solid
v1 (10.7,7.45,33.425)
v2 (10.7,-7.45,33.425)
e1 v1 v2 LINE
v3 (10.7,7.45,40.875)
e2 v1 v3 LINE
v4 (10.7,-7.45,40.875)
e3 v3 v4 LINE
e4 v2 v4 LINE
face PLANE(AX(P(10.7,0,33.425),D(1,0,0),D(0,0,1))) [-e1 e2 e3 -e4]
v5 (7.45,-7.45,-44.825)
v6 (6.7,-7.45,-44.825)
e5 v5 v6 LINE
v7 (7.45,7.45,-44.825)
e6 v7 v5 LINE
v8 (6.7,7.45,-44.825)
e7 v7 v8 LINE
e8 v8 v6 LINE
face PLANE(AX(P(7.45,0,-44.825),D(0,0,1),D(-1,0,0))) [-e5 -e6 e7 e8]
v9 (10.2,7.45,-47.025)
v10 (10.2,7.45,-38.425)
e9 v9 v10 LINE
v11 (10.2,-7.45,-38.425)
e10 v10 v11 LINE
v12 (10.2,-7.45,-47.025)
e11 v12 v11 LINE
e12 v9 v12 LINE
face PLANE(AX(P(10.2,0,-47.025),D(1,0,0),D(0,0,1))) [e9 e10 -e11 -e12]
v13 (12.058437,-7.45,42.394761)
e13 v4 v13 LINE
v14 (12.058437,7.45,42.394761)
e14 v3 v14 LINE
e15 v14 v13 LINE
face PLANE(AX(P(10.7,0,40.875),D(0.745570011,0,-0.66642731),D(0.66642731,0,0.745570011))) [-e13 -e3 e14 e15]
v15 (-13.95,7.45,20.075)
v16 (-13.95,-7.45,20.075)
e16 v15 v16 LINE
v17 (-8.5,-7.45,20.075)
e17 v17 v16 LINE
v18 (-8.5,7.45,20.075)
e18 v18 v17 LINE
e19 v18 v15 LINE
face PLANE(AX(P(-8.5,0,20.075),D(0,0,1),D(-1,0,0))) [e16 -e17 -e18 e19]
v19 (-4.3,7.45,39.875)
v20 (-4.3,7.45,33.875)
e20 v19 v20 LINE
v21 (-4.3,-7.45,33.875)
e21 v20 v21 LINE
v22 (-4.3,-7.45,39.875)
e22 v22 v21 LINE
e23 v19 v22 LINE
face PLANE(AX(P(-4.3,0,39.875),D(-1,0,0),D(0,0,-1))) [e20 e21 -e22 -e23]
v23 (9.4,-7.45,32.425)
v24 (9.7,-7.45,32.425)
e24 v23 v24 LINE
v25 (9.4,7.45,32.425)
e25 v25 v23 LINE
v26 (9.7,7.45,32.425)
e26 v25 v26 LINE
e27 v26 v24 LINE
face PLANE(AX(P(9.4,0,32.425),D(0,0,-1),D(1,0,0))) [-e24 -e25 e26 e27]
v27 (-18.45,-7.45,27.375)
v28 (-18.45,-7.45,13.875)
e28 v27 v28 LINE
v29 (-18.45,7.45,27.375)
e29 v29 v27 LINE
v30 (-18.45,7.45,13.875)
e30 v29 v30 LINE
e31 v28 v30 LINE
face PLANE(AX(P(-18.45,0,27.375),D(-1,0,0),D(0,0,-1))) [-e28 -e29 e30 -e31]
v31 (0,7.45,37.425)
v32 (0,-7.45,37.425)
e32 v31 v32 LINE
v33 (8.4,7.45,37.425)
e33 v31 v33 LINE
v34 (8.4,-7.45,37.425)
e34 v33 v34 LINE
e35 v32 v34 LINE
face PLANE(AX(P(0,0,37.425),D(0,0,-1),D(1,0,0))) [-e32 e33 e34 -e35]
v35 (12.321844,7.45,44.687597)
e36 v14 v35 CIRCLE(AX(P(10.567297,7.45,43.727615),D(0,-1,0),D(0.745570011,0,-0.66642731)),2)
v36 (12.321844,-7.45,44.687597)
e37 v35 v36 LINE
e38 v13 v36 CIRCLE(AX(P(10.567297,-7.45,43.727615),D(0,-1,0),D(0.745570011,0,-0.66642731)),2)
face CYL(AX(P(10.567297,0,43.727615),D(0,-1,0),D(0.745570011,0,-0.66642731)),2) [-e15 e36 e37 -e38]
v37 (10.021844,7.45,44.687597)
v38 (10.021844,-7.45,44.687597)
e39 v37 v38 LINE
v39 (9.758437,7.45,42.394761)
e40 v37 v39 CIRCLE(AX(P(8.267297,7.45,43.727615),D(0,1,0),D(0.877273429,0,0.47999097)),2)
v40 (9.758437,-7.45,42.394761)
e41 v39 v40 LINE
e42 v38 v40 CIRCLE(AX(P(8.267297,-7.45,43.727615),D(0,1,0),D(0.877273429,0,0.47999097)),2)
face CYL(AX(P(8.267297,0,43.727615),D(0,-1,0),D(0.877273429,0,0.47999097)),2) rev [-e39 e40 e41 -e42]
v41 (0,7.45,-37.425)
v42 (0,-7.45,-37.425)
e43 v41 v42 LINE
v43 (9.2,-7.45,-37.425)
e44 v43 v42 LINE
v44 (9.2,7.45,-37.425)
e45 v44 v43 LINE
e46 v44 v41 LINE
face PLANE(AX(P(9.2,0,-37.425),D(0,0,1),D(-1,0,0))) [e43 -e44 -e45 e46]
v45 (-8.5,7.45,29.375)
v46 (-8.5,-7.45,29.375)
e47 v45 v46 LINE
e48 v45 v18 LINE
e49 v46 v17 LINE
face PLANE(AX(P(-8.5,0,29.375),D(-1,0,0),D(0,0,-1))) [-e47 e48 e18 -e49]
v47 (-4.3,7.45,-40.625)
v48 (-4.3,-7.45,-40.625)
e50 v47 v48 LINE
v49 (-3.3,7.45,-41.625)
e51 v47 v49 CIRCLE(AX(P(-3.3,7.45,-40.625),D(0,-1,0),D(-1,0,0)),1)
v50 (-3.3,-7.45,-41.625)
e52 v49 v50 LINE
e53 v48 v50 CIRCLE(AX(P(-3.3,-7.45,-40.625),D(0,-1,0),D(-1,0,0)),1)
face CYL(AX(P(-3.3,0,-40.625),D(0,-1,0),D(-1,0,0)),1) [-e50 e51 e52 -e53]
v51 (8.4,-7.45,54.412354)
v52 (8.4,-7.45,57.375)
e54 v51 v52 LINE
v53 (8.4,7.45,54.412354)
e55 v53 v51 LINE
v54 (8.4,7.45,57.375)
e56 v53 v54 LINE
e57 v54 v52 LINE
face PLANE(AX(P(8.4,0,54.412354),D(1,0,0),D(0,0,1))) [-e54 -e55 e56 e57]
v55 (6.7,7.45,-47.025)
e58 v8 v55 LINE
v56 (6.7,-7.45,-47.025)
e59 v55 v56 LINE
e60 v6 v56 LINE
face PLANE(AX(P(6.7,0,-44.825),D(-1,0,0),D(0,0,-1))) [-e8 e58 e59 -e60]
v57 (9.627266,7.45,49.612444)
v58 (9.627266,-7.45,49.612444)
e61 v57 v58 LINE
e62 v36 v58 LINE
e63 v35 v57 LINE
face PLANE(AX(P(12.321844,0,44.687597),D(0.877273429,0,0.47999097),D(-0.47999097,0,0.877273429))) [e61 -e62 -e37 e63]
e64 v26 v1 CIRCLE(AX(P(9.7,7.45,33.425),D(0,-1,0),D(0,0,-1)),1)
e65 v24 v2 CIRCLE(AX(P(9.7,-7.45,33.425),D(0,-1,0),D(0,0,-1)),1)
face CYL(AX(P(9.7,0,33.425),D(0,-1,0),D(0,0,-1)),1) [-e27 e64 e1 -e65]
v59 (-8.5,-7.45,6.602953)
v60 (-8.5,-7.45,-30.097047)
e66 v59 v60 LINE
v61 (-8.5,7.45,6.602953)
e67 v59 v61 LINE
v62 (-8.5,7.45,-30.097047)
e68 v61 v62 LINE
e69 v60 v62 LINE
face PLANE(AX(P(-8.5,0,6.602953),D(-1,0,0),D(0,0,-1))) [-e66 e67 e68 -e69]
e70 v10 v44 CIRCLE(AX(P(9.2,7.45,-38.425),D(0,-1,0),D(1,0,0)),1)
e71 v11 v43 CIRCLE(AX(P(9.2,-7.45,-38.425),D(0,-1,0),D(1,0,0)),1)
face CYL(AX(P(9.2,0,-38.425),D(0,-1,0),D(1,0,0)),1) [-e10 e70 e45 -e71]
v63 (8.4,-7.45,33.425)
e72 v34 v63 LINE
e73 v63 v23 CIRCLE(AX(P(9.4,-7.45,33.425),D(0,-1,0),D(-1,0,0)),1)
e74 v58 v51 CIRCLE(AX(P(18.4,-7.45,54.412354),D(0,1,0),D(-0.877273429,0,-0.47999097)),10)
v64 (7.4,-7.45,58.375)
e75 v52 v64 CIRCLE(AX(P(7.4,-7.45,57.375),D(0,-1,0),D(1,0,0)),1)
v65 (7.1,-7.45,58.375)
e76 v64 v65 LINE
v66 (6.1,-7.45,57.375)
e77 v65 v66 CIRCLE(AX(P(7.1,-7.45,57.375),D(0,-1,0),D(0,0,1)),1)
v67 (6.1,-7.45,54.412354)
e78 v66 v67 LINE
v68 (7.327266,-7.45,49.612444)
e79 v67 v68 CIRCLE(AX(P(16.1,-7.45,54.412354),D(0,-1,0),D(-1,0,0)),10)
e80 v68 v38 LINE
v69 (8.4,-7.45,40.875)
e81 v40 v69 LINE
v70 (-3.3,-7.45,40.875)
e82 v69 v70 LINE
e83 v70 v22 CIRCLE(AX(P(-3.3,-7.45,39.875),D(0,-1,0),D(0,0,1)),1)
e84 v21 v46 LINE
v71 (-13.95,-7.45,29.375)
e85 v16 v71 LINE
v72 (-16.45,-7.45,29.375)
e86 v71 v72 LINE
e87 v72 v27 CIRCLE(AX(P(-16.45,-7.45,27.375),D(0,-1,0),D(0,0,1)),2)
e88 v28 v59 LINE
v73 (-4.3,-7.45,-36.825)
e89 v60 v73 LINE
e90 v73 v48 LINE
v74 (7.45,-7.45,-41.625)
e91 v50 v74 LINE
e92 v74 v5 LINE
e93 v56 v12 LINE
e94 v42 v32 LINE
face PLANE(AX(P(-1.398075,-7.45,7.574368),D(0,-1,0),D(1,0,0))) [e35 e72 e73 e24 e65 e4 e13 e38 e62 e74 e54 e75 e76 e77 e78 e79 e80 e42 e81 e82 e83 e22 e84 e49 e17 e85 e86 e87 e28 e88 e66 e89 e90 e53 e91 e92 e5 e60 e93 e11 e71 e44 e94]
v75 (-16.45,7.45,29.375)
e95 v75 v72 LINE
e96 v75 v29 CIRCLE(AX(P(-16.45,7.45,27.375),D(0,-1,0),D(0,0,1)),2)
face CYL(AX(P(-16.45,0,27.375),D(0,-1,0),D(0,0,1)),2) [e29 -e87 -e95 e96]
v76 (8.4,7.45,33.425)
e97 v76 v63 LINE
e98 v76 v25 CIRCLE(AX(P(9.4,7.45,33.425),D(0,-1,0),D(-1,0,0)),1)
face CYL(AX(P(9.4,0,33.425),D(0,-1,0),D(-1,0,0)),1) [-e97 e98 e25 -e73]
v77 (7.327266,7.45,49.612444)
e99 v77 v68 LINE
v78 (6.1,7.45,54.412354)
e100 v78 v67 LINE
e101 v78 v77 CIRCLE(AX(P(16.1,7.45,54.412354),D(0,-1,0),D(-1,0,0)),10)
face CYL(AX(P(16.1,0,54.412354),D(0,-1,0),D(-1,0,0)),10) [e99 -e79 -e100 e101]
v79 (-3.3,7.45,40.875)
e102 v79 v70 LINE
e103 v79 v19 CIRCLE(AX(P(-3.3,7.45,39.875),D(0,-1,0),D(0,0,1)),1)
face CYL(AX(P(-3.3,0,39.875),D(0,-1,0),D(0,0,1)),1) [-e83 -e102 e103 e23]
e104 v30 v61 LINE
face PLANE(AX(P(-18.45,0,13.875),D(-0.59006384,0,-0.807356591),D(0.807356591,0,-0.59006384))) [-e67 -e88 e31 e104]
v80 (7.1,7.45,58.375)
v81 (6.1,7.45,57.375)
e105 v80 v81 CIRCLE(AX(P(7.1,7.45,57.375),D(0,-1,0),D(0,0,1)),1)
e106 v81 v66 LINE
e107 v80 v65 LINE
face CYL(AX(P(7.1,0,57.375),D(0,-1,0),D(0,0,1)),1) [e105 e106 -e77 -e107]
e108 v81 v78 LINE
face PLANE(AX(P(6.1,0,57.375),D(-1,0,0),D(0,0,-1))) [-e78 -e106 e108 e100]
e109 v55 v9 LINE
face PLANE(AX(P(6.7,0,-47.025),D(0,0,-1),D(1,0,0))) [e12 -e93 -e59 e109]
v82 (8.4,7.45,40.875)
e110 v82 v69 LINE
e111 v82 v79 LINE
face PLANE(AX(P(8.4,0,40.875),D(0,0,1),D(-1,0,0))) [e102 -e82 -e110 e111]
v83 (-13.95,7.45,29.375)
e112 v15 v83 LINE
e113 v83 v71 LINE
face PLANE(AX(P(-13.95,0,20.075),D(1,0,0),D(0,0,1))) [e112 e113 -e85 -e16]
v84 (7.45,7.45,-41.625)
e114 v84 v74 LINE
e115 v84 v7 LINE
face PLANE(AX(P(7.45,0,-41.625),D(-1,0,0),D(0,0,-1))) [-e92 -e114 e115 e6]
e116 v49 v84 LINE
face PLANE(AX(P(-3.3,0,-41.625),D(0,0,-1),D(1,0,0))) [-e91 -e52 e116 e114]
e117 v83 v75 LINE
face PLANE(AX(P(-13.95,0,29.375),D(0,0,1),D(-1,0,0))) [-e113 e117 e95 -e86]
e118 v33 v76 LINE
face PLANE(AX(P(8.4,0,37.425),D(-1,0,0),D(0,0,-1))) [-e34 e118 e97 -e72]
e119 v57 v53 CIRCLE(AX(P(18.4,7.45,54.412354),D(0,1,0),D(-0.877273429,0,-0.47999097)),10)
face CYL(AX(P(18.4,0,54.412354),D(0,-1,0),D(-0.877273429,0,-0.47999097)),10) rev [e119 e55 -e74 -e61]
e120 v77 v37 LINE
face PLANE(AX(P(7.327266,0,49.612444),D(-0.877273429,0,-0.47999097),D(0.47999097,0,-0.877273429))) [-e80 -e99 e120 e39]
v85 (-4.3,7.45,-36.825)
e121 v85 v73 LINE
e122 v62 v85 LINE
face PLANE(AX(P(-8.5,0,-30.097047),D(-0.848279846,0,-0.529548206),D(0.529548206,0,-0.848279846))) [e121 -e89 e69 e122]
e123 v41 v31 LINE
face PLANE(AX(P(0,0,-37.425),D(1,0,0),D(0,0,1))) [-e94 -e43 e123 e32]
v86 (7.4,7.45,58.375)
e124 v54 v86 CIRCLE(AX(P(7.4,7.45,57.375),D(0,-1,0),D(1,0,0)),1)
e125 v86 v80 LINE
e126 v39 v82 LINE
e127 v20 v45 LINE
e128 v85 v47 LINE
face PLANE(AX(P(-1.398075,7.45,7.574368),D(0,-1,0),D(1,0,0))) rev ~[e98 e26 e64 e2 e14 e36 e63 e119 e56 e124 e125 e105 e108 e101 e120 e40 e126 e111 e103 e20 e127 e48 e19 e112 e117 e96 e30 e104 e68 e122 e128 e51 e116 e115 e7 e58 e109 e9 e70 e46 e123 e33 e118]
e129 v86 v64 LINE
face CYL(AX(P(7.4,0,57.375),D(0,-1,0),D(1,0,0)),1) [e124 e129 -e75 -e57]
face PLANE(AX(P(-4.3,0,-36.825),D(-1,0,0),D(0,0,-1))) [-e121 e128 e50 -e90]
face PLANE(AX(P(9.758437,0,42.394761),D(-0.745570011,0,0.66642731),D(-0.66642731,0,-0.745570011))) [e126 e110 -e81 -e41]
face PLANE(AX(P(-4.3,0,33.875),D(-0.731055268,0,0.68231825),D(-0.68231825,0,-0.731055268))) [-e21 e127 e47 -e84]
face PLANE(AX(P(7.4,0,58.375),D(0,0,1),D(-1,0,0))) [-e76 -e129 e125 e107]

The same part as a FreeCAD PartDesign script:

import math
import FreeCAD as App
import Part
import Sketcher

V = App.Vector
Q = App.Units.Quantity

doc = App.newDocument("Part")
params = doc.addObject("Spreadsheet::Sheet", "Params")
for row, (alias, value) in enumerate([
    ("sketch1_radius", "1 mm"),
    ("sketch1_radius2", "2 mm"),
    ("sketch1_radius3", "10 mm"),
    ("sketch1_height", "4 mm"),
    ("sketch1_height2", "6 mm"),
    ("pad1_length", "14.9 mm"),
], start=1):
    params.set(f"A{row}", alias)
    params.set(f"B{row}", "=" + value)
    params.setAlias(f"B{row}", alias)

body = doc.addObject("PartDesign::Body", "Body")

# Sketch on XZ plane
sketch1 = body.newObject("Sketcher::SketchObject", "Sketch")
sketch1.AttachmentSupport = (doc.getObject("XZ_Plane"), [""])
sketch1.MapMode = "FlatFace"
sketch1.addGeometry(Part.LineSegment(V(-8.5, -30.097047, 0), V(-4.3, -36.825, 0)), False)
sketch1.addGeometry(Part.LineSegment(V(-4.3, -36.825, 0), V(-4.3, -40.625, 0)), False)
sketch1.addGeometry(Part.ArcOfCircle(Part.Circle(V(-3.3, -40.625, 0), V(0, 0, 1), 1), math.radians(180), math.radians(270)), False)
sketch1.addGeometry(Part.LineSegment(V(-3.3, -41.625, 0), V(7.45, -41.625, 0)), False)
sketch1.addGeometry(Part.LineSegment(V(7.45, -41.625, 0), V(7.45, -44.825, 0)), False)
sketch1.addGeometry(Part.LineSegment(V(7.45, -44.825, 0), V(6.7, -44.825, 0)), False)
sketch1.addGeometry(Part.LineSegment(V(6.7, -44.825, 0), V(6.7, -47.025, 0)), False)
sketch1.addGeometry(Part.LineSegment(V(6.7, -47.025, 0), V(10.2, -47.025, 0)), False)
sketch1.addGeometry(Part.LineSegment(V(10.2, -47.025, 0), V(10.2, -38.425, 0)), False)
sketch1.addGeometry(Part.ArcOfCircle(Part.Circle(V(9.2, -38.425, 0), V(0, 0, 1), 1), math.radians(0), math.radians(90)), False)
sketch1.addGeometry(Part.LineSegment(V(9.2, -37.425, 0), V(0, -37.425, 0)), False)
sketch1.addGeometry(Part.LineSegment(V(0, -37.425, 0), V(0, 37.425, 0)), False)
sketch1.addGeometry(Part.LineSegment(V(0, 37.425, 0), V(8.4, 37.425, 0)), False)
sketch1.addGeometry(Part.LineSegment(V(8.4, 37.425, 0), V(8.4, 33.425, 0)), False)
sketch1.addGeometry(Part.ArcOfCircle(Part.Circle(V(9.4, 33.425, 0), V(0, 0, 1), 1), math.radians(180), math.radians(270)), False)
sketch1.addGeometry(Part.LineSegment(V(9.4, 32.425, 0), V(9.7, 32.425, 0)), False)
sketch1.addGeometry(Part.ArcOfCircle(Part.Circle(V(9.7, 33.425, 0), V(0, 0, 1), 1), math.radians(-90), math.radians(0)), False)
sketch1.addGeometry(Part.LineSegment(V(10.7, 33.425, 0), V(10.7, 40.875, 0)), False)
sketch1.addGeometry(Part.LineSegment(V(10.7, 40.875, 0), V(12.058437, 42.394761, 0)), False)
sketch1.addGeometry(Part.ArcOfCircle(Part.Circle(V(10.567297, 43.727615, 0), V(0, 0, 1), 2), math.radians(-41.791918), math.radians(28.684812)), False)
sketch1.addGeometry(Part.LineSegment(V(12.321844, 44.687597, 0), V(9.627266, 49.612444, 0)), False)
sketch1.addGeometry(Part.ArcOfCircle(Part.Circle(V(18.4, 54.412354, 0), V(0, 0, 1), 10), math.radians(-180), math.radians(-151.315188)), False)
sketch1.addGeometry(Part.LineSegment(V(8.4, 54.412354, 0), V(8.4, 57.375, 0)), False)
sketch1.addGeometry(Part.ArcOfCircle(Part.Circle(V(7.4, 57.375, 0), V(0, 0, 1), 1), math.radians(0), math.radians(90)), False)
sketch1.addGeometry(Part.LineSegment(V(7.4, 58.375, 0), V(7.1, 58.375, 0)), False)
sketch1.addGeometry(Part.ArcOfCircle(Part.Circle(V(7.1, 57.375, 0), V(0, 0, 1), 1), math.radians(90), math.radians(180)), False)
sketch1.addGeometry(Part.LineSegment(V(6.1, 57.375, 0), V(6.1, 54.412354, 0)), False)
sketch1.addGeometry(Part.ArcOfCircle(Part.Circle(V(16.1, 54.412354, 0), V(0, 0, 1), 10), math.radians(-180), math.radians(-151.315188)), False)
sketch1.addGeometry(Part.LineSegment(V(7.327266, 49.612444, 0), V(10.021844, 44.687597, 0)), False)
sketch1.addGeometry(Part.ArcOfCircle(Part.Circle(V(8.267297, 43.727615, 0), V(0, 0, 1), 2), math.radians(-41.791918), math.radians(28.684812)), False)
sketch1.addGeometry(Part.LineSegment(V(9.758437, 42.394761, 0), V(8.4, 40.875, 0)), False)
sketch1.addGeometry(Part.LineSegment(V(8.4, 40.875, 0), V(-3.3, 40.875, 0)), False)
sketch1.addGeometry(Part.ArcOfCircle(Part.Circle(V(-3.3, 39.875, 0), V(0, 0, 1), 1), math.radians(90), math.radians(180)), False)
sketch1.addGeometry(Part.LineSegment(V(-4.3, 39.875, 0), V(-4.3, 33.875, 0)), False)
sketch1.addGeometry(Part.LineSegment(V(-4.3, 33.875, 0), V(-8.5, 29.375, 0)), False)
sketch1.addGeometry(Part.LineSegment(V(-8.5, 29.375, 0), V(-8.5, 20.075, 0)), False)
sketch1.addGeometry(Part.LineSegment(V(-8.5, 20.075, 0), V(-13.95, 20.075, 0)), False)
sketch1.addGeometry(Part.LineSegment(V(-13.95, 20.075, 0), V(-13.95, 29.375, 0)), False)
sketch1.addGeometry(Part.LineSegment(V(-13.95, 29.375, 0), V(-16.45, 29.375, 0)), False)
sketch1.addGeometry(Part.ArcOfCircle(Part.Circle(V(-16.45, 27.375, 0), V(0, 0, 1), 2), math.radians(90), math.radians(180)), False)
sketch1.addGeometry(Part.LineSegment(V(-18.45, 27.375, 0), V(-18.45, 13.875, 0)), False)
sketch1.addGeometry(Part.LineSegment(V(-18.45, 13.875, 0), V(-8.5, 6.602953, 0)), False)
sketch1.addGeometry(Part.LineSegment(V(-8.5, 6.602953, 0), V(-8.5, -30.097047, 0)), False)
sketch1.addConstraint(Sketcher.Constraint("Coincident", 0, 2, 1, 1))
sketch1.addConstraint(Sketcher.Constraint("Tangent", 1, 2, 2, 1))
sketch1.addConstraint(Sketcher.Constraint("Tangent", 2, 2, 3, 1))
sketch1.addConstraint(Sketcher.Constraint("Coincident", 3, 2, 4, 1))
sketch1.addConstraint(Sketcher.Constraint("Coincident", 4, 2, 5, 1))
sketch1.addConstraint(Sketcher.Constraint("Coincident", 5, 2, 6, 1))
sketch1.addConstraint(Sketcher.Constraint("Coincident", 6, 2, 7, 1))
sketch1.addConstraint(Sketcher.Constraint("Coincident", 7, 2, 8, 1))
sketch1.addConstraint(Sketcher.Constraint("Tangent", 8, 2, 9, 1))
sketch1.addConstraint(Sketcher.Constraint("Tangent", 9, 2, 10, 1))
sketch1.addConstraint(Sketcher.Constraint("Coincident", 10, 2, 11, 1))
sketch1.addConstraint(Sketcher.Constraint("Coincident", 11, 2, 12, 1))
sketch1.addConstraint(Sketcher.Constraint("Coincident", 12, 2, 13, 1))
sketch1.addConstraint(Sketcher.Constraint("Tangent", 13, 2, 14, 1))
sketch1.addConstraint(Sketcher.Constraint("Tangent", 14, 2, 15, 1))
sketch1.addConstraint(Sketcher.Constraint("Tangent", 15, 2, 16, 1))
sketch1.addConstraint(Sketcher.Constraint("Tangent", 16, 2, 17, 1))
sketch1.addConstraint(Sketcher.Constraint("Coincident", 17, 2, 18, 1))
sketch1.addConstraint(Sketcher.Constraint("Tangent", 18, 2, 19, 1))
sketch1.addConstraint(Sketcher.Constraint("Tangent", 19, 2, 20, 1))
sketch1.addConstraint(Sketcher.Constraint("Tangent", 20, 2, 21, 2))
sketch1.addConstraint(Sketcher.Constraint("Tangent", 21, 1, 22, 1))
sketch1.addConstraint(Sketcher.Constraint("Tangent", 22, 2, 23, 1))
sketch1.addConstraint(Sketcher.Constraint("Tangent", 23, 2, 24, 1))
sketch1.addConstraint(Sketcher.Constraint("Tangent", 24, 2, 25, 1))
sketch1.addConstraint(Sketcher.Constraint("Tangent", 25, 2, 26, 1))
sketch1.addConstraint(Sketcher.Constraint("Tangent", 26, 2, 27, 1))
sketch1.addConstraint(Sketcher.Constraint("Tangent", 27, 2, 28, 1))
sketch1.addConstraint(Sketcher.Constraint("Tangent", 28, 2, 29, 2))
sketch1.addConstraint(Sketcher.Constraint("Tangent", 29, 1, 30, 1))
sketch1.addConstraint(Sketcher.Constraint("Coincident", 30, 2, 31, 1))
sketch1.addConstraint(Sketcher.Constraint("Tangent", 31, 2, 32, 1))
sketch1.addConstraint(Sketcher.Constraint("Tangent", 32, 2, 33, 1))
sketch1.addConstraint(Sketcher.Constraint("Coincident", 33, 2, 34, 1))
sketch1.addConstraint(Sketcher.Constraint("Coincident", 34, 2, 35, 1))
sketch1.addConstraint(Sketcher.Constraint("Coincident", 35, 2, 36, 1))
sketch1.addConstraint(Sketcher.Constraint("Coincident", 36, 2, 37, 1))
sketch1.addConstraint(Sketcher.Constraint("Coincident", 37, 2, 38, 1))
sketch1.addConstraint(Sketcher.Constraint("Tangent", 38, 2, 39, 1))
sketch1.addConstraint(Sketcher.Constraint("Tangent", 39, 2, 40, 1))
sketch1.addConstraint(Sketcher.Constraint("Coincident", 40, 2, 41, 1))
sketch1.addConstraint(Sketcher.Constraint("Coincident", 41, 2, 42, 1))
sketch1.addConstraint(Sketcher.Constraint("Coincident", 42, 2, 0, 1))
sketch1.addConstraint(Sketcher.Constraint("Vertical", 1))
sketch1.addConstraint(Sketcher.Constraint("Horizontal", 3))
sketch1.addConstraint(Sketcher.Constraint("Vertical", 4))
sketch1.addConstraint(Sketcher.Constraint("Horizontal", 5))
sketch1.addConstraint(Sketcher.Constraint("Vertical", 6))
sketch1.addConstraint(Sketcher.Constraint("Horizontal", 7))
sketch1.addConstraint(Sketcher.Constraint("Vertical", 8))
sketch1.addConstraint(Sketcher.Constraint("Horizontal", 10))
sketch1.addConstraint(Sketcher.Constraint("Vertical", 11))
sketch1.addConstraint(Sketcher.Constraint("Horizontal", 12))
sketch1.addConstraint(Sketcher.Constraint("Vertical", 13))
sketch1.addConstraint(Sketcher.Constraint("Horizontal", 15))
sketch1.addConstraint(Sketcher.Constraint("Vertical", 17))
sketch1.addConstraint(Sketcher.Constraint("Vertical", 22))
sketch1.addConstraint(Sketcher.Constraint("Horizontal", 24))
sketch1.addConstraint(Sketcher.Constraint("Vertical", 26))
sketch1.addConstraint(Sketcher.Constraint("Horizontal", 31))
sketch1.addConstraint(Sketcher.Constraint("Vertical", 33))
sketch1.addConstraint(Sketcher.Constraint("Vertical", 35))
sketch1.addConstraint(Sketcher.Constraint("Horizontal", 36))
sketch1.addConstraint(Sketcher.Constraint("Vertical", 37))
sketch1.addConstraint(Sketcher.Constraint("Horizontal", 38))
sketch1.addConstraint(Sketcher.Constraint("Vertical", 40))
sketch1.addConstraint(Sketcher.Constraint("Vertical", 42))
sketch1.addConstraint(Sketcher.Constraint("Equal", 2, 9))
sketch1.addConstraint(Sketcher.Constraint("Equal", 9, 14))
sketch1.addConstraint(Sketcher.Constraint("Equal", 14, 16))
sketch1.addConstraint(Sketcher.Constraint("Equal", 16, 23))
sketch1.addConstraint(Sketcher.Constraint("Equal", 23, 25))
sketch1.addConstraint(Sketcher.Constraint("Equal", 21, 27))
sketch1.addConstraint(Sketcher.Constraint("Equal", 19, 29))
sketch1.addConstraint(Sketcher.Constraint("Equal", 25, 32))
sketch1.addConstraint(Sketcher.Constraint("Equal", 29, 39))
sketch1.addConstraint(Sketcher.Constraint("Symmetric", 10, 2, 11, 2, -1, 1))
sketch1.addConstraint(Sketcher.Constraint("Parallel", 20, 28))
sketch1.addConstraint(Sketcher.Constraint("Parallel", 18, 30))
sketch1.addConstraint(Sketcher.Constraint("Horizontal", 21, 3, 27, 3))
sketch1.addConstraint(Sketcher.Constraint("Horizontal", 19, 3, 29, 3))
sketch1.addConstraint(Sketcher.Constraint("Horizontal", 17, 2, 30, 2))
sketch1.addConstraint(Sketcher.Constraint("Horizontal", 34, 2, 37, 2))
sketch1.addConstraint(Sketcher.Constraint("Vertical", 2, 3, 32, 3))
sketch1.addConstraint(Sketcher.Constraint("Vertical", 13, 2, 21, 1))
sketch1.addConstraint(Sketcher.Constraint("Vertical", 22, 2, 30, 2))
sketch1.addConstraint(Sketcher.Constraint("Vertical", 35, 2, 41, 2))
sketch1.addConstraint(Sketcher.Constraint("Radius", 2, Q("1 mm")))
sketch1.addConstraint(Sketcher.Constraint("Radius", 19, Q("2 mm")))
sketch1.addConstraint(Sketcher.Constraint("Radius", 21, Q("10 mm")))
sketch1.addConstraint(Sketcher.Constraint("DistanceY", 13, 2, 13, 1, Q("4 mm")))
sketch1.addConstraint(Sketcher.Constraint("DistanceY", 33, 2, 33, 1, Q("6 mm")))
sketch1.addConstraint(Sketcher.Constraint("DistanceX", 7, 1, 7, 2, Q("3.5 mm")))
sketch1.addConstraint(Sketcher.Constraint("DistanceX", 10, 2, 10, 1, Q("9.2 mm")))
sketch1.addConstraint(Sketcher.Constraint("DistanceX", 12, 1, 12, 2, Q("8.4 mm")))
sketch1.addConstraint(Sketcher.Constraint("DistanceX", 15, 1, 15, 2, Q("0.3 mm")))
sketch1.addConstraint(Sketcher.Constraint("DistanceX", 31, 2, 31, 1, Q("11.7 mm")))
sketch1.addConstraint(Sketcher.Constraint("DistanceX", 38, 2, 38, 1, Q("2.5 mm")))
sketch1.addConstraint(Sketcher.Constraint("DistanceY", 1, 2, 1, 1, Q("3.8 mm")))
sketch1.addConstraint(Sketcher.Constraint("DistanceY", 4, 2, 4, 1, Q("3.2 mm")))
sketch1.addConstraint(Sketcher.Constraint("DistanceY", 6, 2, 6, 1, Q("2.2 mm")))
sketch1.addConstraint(Sketcher.Constraint("DistanceY", 8, 1, 8, 2, Q("8.6 mm")))
sketch1.addConstraint(Sketcher.Constraint("DistanceY", 35, 2, 35, 1, Q("9.3 mm")))
sketch1.addConstraint(Sketcher.Constraint("DistanceY", 40, 2, 40, 1, Q("13.5 mm")))
sketch1.addConstraint(Sketcher.Constraint("DistanceY", 42, 2, 42, 1, Q("36.7 mm")))
sketch1.addConstraint(Sketcher.Constraint("DistanceY", 1, 2, 39, 3, Q("68 mm")))
sketch1.addConstraint(Sketcher.Constraint("DistanceX", 3, 1, 3, 2, Q("10.75 mm")))
sketch1.addConstraint(Sketcher.Constraint("DistanceX", 36, 2, 36, 1, Q("5.45 mm")))
sketch1.addConstraint(Sketcher.Constraint("DistanceY", 11, 1, 11, 2, Q("74.85 mm")))
sketch1.addConstraint(Sketcher.Constraint("DistanceY", 17, 1, 17, 2, Q("7.45 mm")))
sketch1.addConstraint(Sketcher.Constraint("DistanceX", 34, 2, -1, 1, Q("8.5 mm")))
sketch1.addConstraint(Sketcher.Constraint("DistanceY", 9, 3, 23, 3, Q("95.8 mm")))
sketch1.addConstraint(Sketcher.Constraint("Distance", 0, Q("7.931289 mm")))
sketch1.addConstraint(Sketcher.Constraint("Distance", 20, Q("5.613811 mm")))
sketch1.addConstraint(Sketcher.Constraint("DistanceY", 22, 1, 22, 2, Q("2.962646 mm")))
sketch1.addConstraint(Sketcher.Constraint("DistanceY", -1, 1, 18, 2, Q("42.394761 mm")))
sketch1.setExpression("Constraints[87]", "Params.sketch1_radius")
sketch1.setExpression("Constraints[88]", "Params.sketch1_radius2")
sketch1.setExpression("Constraints[89]", "Params.sketch1_radius3")
sketch1.setExpression("Constraints[90]", "Params.sketch1_height")
sketch1.setExpression("Constraints[91]", "Params.sketch1_height2")
pad1 = body.newObject("PartDesign::Pad", "Pad")
pad1.Profile = sketch1
pad1.setExpression("Length", "Params.pad1_length")
pad1.Midplane = True

doc.recompute()
